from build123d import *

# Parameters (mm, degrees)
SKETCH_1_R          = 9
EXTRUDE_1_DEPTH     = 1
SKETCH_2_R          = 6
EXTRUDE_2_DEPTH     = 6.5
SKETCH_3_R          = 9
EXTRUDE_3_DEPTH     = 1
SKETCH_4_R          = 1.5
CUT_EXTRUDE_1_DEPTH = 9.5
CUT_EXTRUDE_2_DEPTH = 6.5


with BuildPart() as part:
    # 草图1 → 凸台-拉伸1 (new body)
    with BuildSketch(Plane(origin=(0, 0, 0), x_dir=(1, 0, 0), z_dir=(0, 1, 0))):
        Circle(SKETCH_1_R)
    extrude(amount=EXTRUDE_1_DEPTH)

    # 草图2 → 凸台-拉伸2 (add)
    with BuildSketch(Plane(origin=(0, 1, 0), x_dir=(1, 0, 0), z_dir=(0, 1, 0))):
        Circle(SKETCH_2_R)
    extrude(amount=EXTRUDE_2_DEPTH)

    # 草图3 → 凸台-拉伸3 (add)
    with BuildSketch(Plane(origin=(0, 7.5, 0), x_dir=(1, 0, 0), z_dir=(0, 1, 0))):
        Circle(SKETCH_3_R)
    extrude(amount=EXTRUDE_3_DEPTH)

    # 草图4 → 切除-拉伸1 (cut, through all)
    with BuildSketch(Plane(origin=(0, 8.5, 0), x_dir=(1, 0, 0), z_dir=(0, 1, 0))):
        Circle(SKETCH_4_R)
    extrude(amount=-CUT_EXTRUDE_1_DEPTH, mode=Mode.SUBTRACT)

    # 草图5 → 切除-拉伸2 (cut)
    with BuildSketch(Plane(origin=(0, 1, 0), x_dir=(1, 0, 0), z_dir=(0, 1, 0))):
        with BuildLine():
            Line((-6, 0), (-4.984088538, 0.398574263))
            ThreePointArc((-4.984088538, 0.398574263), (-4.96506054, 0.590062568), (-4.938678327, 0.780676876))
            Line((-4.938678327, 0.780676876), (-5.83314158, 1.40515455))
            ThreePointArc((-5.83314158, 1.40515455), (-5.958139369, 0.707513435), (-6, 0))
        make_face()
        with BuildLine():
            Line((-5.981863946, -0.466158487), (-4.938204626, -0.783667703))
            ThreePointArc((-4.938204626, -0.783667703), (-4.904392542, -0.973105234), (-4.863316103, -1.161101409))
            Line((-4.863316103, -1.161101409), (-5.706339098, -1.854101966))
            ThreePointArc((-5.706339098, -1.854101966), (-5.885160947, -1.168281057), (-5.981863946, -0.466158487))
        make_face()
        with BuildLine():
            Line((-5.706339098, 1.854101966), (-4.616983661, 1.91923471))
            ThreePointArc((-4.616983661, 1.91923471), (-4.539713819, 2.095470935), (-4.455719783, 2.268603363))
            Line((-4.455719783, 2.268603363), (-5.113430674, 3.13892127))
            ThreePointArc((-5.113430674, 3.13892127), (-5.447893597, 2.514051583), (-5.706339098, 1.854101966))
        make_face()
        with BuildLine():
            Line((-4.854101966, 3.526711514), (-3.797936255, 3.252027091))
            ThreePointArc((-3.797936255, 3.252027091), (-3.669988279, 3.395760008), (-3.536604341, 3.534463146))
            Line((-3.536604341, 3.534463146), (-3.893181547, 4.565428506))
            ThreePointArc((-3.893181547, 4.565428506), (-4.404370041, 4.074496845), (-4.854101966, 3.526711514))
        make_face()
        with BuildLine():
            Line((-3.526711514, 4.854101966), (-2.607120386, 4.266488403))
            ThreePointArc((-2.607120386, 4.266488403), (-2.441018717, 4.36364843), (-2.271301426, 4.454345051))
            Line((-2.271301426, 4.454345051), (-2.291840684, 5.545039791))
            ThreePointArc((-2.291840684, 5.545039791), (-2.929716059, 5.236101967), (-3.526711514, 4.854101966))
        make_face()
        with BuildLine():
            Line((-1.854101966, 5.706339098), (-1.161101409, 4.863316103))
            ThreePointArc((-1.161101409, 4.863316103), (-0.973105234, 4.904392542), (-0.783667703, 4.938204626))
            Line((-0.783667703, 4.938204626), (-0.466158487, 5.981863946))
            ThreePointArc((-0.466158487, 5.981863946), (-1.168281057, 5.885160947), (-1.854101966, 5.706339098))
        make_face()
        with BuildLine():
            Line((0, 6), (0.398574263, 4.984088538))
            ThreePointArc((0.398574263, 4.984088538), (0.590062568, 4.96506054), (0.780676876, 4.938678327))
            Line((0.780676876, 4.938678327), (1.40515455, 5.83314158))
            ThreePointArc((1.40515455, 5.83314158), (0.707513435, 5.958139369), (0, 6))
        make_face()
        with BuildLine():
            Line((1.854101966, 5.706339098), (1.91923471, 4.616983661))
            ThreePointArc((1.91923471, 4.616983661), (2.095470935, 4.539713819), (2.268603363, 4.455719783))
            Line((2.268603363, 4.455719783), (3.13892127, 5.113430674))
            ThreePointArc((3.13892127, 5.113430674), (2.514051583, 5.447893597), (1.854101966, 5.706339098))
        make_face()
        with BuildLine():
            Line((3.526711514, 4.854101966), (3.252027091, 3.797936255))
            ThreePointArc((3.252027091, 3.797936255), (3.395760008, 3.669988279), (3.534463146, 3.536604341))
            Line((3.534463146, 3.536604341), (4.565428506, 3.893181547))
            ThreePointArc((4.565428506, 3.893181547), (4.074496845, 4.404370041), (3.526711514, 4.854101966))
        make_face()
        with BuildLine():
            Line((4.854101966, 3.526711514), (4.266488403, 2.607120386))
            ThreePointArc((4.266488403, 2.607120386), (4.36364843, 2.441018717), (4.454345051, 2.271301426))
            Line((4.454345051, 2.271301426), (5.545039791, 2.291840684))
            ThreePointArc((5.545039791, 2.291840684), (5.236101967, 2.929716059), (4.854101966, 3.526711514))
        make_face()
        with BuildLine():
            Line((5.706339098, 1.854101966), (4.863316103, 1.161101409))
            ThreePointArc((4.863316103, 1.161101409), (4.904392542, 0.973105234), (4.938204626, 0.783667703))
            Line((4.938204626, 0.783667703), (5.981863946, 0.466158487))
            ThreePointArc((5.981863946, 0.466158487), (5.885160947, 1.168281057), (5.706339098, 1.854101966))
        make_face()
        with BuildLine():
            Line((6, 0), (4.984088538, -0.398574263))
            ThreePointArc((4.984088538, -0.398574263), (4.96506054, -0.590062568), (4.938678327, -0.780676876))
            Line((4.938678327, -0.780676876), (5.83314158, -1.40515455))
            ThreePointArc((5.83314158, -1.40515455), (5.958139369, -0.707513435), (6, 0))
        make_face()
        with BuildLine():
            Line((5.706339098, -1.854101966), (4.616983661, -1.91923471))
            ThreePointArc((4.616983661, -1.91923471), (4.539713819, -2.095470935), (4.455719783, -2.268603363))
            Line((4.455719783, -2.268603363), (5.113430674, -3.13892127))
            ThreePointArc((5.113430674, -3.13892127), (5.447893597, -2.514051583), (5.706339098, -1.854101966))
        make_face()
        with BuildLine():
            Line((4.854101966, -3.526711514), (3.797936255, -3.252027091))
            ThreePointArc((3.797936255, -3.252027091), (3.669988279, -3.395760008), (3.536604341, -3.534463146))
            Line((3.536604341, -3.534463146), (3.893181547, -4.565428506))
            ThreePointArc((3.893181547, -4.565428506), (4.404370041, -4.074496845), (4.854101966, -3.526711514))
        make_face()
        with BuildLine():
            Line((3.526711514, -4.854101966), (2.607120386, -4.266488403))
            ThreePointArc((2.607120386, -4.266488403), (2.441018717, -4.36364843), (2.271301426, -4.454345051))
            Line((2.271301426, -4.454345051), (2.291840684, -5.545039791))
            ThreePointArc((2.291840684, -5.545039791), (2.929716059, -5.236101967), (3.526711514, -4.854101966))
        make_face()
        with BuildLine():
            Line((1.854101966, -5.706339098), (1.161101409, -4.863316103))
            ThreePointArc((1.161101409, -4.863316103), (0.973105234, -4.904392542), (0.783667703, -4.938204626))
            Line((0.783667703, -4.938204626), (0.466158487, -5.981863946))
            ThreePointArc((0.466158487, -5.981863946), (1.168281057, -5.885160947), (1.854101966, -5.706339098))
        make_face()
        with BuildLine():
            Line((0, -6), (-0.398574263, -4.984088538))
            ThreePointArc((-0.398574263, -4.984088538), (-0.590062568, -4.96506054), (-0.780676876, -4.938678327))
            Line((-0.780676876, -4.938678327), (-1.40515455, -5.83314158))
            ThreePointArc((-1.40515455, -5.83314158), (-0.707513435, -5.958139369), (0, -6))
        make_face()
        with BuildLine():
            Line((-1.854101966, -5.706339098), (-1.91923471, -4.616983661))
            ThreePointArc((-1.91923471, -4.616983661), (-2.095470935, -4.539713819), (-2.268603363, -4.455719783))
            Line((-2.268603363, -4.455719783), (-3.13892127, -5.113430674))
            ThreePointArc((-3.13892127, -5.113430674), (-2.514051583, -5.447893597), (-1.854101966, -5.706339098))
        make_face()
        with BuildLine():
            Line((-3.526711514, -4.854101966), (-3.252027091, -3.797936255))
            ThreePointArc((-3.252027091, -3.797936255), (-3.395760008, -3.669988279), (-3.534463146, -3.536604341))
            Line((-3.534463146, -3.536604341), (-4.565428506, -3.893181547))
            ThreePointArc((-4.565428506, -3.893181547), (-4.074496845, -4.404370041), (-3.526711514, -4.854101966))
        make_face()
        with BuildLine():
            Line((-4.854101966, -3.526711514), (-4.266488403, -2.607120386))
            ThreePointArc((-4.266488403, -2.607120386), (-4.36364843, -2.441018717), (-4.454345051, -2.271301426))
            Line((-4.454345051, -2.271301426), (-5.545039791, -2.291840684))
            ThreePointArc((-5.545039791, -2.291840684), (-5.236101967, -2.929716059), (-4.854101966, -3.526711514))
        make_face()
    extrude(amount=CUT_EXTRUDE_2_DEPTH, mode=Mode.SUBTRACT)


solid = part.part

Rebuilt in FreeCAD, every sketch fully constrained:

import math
import FreeCAD as App
import Part
import Sketcher

doc = App.newDocument("Part")
body = doc.addObject("PartDesign::Body", "Body")

sketch1 = body.newObject("Sketcher::SketchObject", "Sketch")
sketch1.AttachmentSupport = (doc.getObject("XZ_Plane"), [""])
sketch1.MapMode = "FlatFace"
sketch1.addGeometry(Part.Circle(App.Vector(0, 0, 0), App.Vector(0, 0, 1), 9), False)
sketch1.addConstraint(Sketcher.Constraint("Coincident", 0, 3, -1, 1))
sketch1.addConstraint(Sketcher.Constraint("Diameter", 0, 18.0))
pad1 = body.newObject("PartDesign::Pad", "Pad")
pad1.Profile = sketch1
pad1.Length = 1
pad1.Reversed = True

sketch2 = body.newObject("Sketcher::SketchObject", "Sketch001")
sketch2.AttachmentSupport = (doc.getObject("XZ_Plane"), [""])
sketch2.MapMode = "FlatFace"
sketch2.AttachmentOffset = App.Placement(App.Vector(0, 0, -1), App.Rotation())
sketch2.addGeometry(Part.Circle(App.Vector(0, 0, 0), App.Vector(0, 0, 1), 6), False)
sketch2.addConstraint(Sketcher.Constraint("Coincident", 0, 3, -1, 1))
sketch2.addConstraint(Sketcher.Constraint("Diameter", 0, 12.0))
pad2 = body.newObject("PartDesign::Pad", "Pad001")
pad2.Profile = sketch2
pad2.Length = 6.5
pad2.Reversed = True

sketch3 = body.newObject("Sketcher::SketchObject", "Sketch002")
sketch3.AttachmentSupport = (doc.getObject("XZ_Plane"), [""])
sketch3.MapMode = "FlatFace"
sketch3.AttachmentOffset = App.Placement(App.Vector(0, 0, -7.5), App.Rotation())
sketch3.addGeometry(Part.Circle(App.Vector(0, 0, 0), App.Vector(0, 0, 1), 9), False)
sketch3.addConstraint(Sketcher.Constraint("Coincident", 0, 3, -1, 1))
sketch3.addConstraint(Sketcher.Constraint("Diameter", 0, 18.0))
pad3 = body.newObject("PartDesign::Pad", "Pad002")
pad3.Profile = sketch3
pad3.Length = 1
pad3.Reversed = True

sketch4 = body.newObject("Sketcher::SketchObject", "Sketch003")
sketch4.AttachmentSupport = (doc.getObject("XZ_Plane"), [""])
sketch4.MapMode = "FlatFace"
sketch4.AttachmentOffset = App.Placement(App.Vector(0, 0, -8.5), App.Rotation())
sketch4.addGeometry(Part.Circle(App.Vector(0, 0, 0), App.Vector(0, 0, 1), 1.5), False)
sketch4.addConstraint(Sketcher.Constraint("Coincident", 0, 3, -1, 1))
sketch4.addConstraint(Sketcher.Constraint("Diameter", 0, 3.0))
pocket1 = body.newObject("PartDesign::Pocket", "Pocket")
pocket1.Profile = sketch4
pocket1.Type = "ThroughAll"
pocket1.Reversed = True

sketch5 = body.newObject("Sketcher::SketchObject", "Sketch004")
sketch5.AttachmentSupport = (doc.getObject("XZ_Plane"), [""])
sketch5.MapMode = "FlatFace"
sketch5.AttachmentOffset = App.Placement(App.Vector(0, 0, -1), App.Rotation())
sketch5.addGeometry(Part.LineSegment(App.Vector(-6, 0, 0), App.Vector(-4.98, -0.4, 0)), False)
sketch5.addGeometry(Part.ArcOfCircle(Part.Circle(App.Vector(0, 0, 0), App.Vector(0, 0, 1), 5), math.radians(-175.43), math.radians(-171.02)), False)
sketch5.addGeometry(Part.LineSegment(App.Vector(-4.94, -0.78, 0), App.Vector(-5.83, -1.41, 0)), False)
sketch5.addGeometry(Part.ArcOfCircle(Part.Circle(App.Vector(0, 0, 0), App.Vector(0, 0, 1), 6), math.radians(180), math.radians(193.54)), False)
sketch5.addGeometry(Part.LineSegment(App.Vector(-4.94, 0.78, 0), App.Vector(-5.98, 0.47, 0)), False)
sketch5.addGeometry(Part.ArcOfCircle(Part.Circle(App.Vector(0, 0, 0), App.Vector(0, 0, 1), 6), math.radians(162), math.radians(175.54)), False)
sketch5.addGeometry(Part.LineSegment(App.Vector(-5.71, 1.85, 0), App.Vector(-4.86, 1.16, 0)), False)
sketch5.addGeometry(Part.ArcOfCircle(Part.Circle(App.Vector(0, 0, 0), App.Vector(0, 0, 1), 5), math.radians(166.57), math.radians(170.98)), False)
sketch5.addGeometry(Part.LineSegment(App.Vector(-5.71, -1.85, 0), App.Vector(-4.62, -1.92, 0)), False)
sketch5.addGeometry(Part.ArcOfCircle(Part.Circle(App.Vector(0, 0, 0), App.Vector(0, 0, 1), 5), math.radians(-157.43), math.radians(-153.02)), False)
sketch5.addGeometry(Part.LineSegment(App.Vector(-4.46, -2.27, 0), App.Vector(-5.11, -3.14, 0)), False)
sketch5.addGeometry(Part.ArcOfCircle(Part.Circle(App.Vector(0, 0, 0), App.Vector(0, 0, 1), 6), math.radians(-162), math.radians(-148.46)), False)
sketch5.addGeometry(Part.LineSegment(App.Vector(-4.85, -3.53, 0), App.Vector(-3.8, -3.25, 0)), False)
sketch5.addGeometry(Part.ArcOfCircle(Part.Circle(App.Vector(0, 0, 0), App.Vector(0, 0, 1), 5), math.radians(-139.43), math.radians(-135.02)), False)
sketch5.addGeometry(Part.LineSegment(App.Vector(-3.54, -3.53, 0), App.Vector(-3.89, -4.57, 0)), False)
sketch5.addGeometry(Part.ArcOfCircle(Part.Circle(App.Vector(0, 0, 0), App.Vector(0, 0, 1), 6), math.radians(-144), math.radians(-130.46)), False)
sketch5.addGeometry(Part.LineSegment(App.Vector(-3.53, -4.85, 0), App.Vector(-2.61, -4.27, 0)), False)
sketch5.addGeometry(Part.ArcOfCircle(Part.Circle(App.Vector(0, 0, 0), App.Vector(0, 0, 1), 5), math.radians(-121.43), math.radians(-117.02)), False)
sketch5.addGeometry(Part.LineSegment(App.Vector(-2.27, -4.45, 0), App.Vector(-2.29, -5.55, 0)), False)
sketch5.addGeometry(Part.ArcOfCircle(Part.Circle(App.Vector(0, 0, 0), App.Vector(0, 0, 1), 6), math.radians(-126), math.radians(-112.46)), False)
sketch5.addGeometry(Part.LineSegment(App.Vector(-1.85, -5.71, 0), App.Vector(-1.16, -4.86, 0)), False)
sketch5.addGeometry(Part.ArcOfCircle(Part.Circle(App.Vector(0, 0, 0), App.Vector(0, 0, 1), 5), math.radians(-103.43), math.radians(-99.02)), False)
sketch5.addGeometry(Part.LineSegment(App.Vector(-0.78, -4.94, 0), App.Vector(-0.47, -5.98, 0)), False)
sketch5.addGeometry(Part.ArcOfCircle(Part.Circle(App.Vector(0, 0, 0), App.Vector(0, 0, 1), 6), math.radians(-108), math.radians(-94.46)), False)
sketch5.addGeometry(Part.LineSegment(App.Vector(0, -6, 0), App.Vector(0.4, -4.98, 0)), False)
sketch5.addGeometry(Part.ArcOfCircle(Part.Circle(App.Vector(0, 0, 0), App.Vector(0, 0, 1), 5), math.radians(-85.43), math.radians(-81.02)), False)
sketch5.addGeometry(Part.LineSegment(App.Vector(0.78, -4.94, 0), App.Vector(1.41, -5.83, 0)), False)
sketch5.addGeometry(Part.ArcOfCircle(Part.Circle(App.Vector(0, 0, 0), App.Vector(0, 0, 1), 6), math.radians(-90), math.radians(-76.46)), False)
sketch5.addGeometry(Part.LineSegment(App.Vector(1.85, -5.71, 0), App.Vector(1.92, -4.62, 0)), False)
sketch5.addGeometry(Part.ArcOfCircle(Part.Circle(App.Vector(0, 0, 0), App.Vector(0, 0, 1), 5), math.radians(-67.43), math.radians(-63.02)), False)
sketch5.addGeometry(Part.LineSegment(App.Vector(2.27, -4.46, 0), App.Vector(3.14, -5.11, 0)), False)
sketch5.addGeometry(Part.ArcOfCircle(Part.Circle(App.Vector(0, 0, 0), App.Vector(0, 0, 1), 6), math.radians(-72), math.radians(-58.46)), False)
sketch5.addGeometry(Part.LineSegment(App.Vector(3.53, -4.85, 0), App.Vector(3.25, -3.8, 0)), False)
sketch5.addGeometry(Part.ArcOfCircle(Part.Circle(App.Vector(0, 0, 0), App.Vector(0, 0, 1), 5), math.radians(-49.43), math.radians(-45.02)), False)
sketch5.addGeometry(Part.LineSegment(App.Vector(3.53, -3.54, 0), App.Vector(4.57, -3.89, 0)), False)
sketch5.addGeometry(Part.ArcOfCircle(Part.Circle(App.Vector(0, 0, 0), App.Vector(0, 0, 1), 6), math.radians(-54), math.radians(-40.46)), False)
sketch5.addGeometry(Part.LineSegment(App.Vector(4.85, -3.53, 0), App.Vector(4.27, -2.61, 0)), False)
sketch5.addGeometry(Part.ArcOfCircle(Part.Circle(App.Vector(0, 0, 0), App.Vector(0, 0, 1), 5), math.radians(-31.43), math.radians(-27.02)), False)
sketch5.addGeometry(Part.LineSegment(App.Vector(4.45, -2.27, 0), App.Vector(5.55, -2.29, 0)), False)
sketch5.addGeometry(Part.ArcOfCircle(Part.Circle(App.Vector(0, 0, 0), App.Vector(0, 0, 1), 6), math.radians(-36), math.radians(-22.46)), False)
sketch5.addGeometry(Part.LineSegment(App.Vector(5.71, -1.85, 0), App.Vector(4.86, -1.16, 0)), False)
sketch5.addGeometry(Part.ArcOfCircle(Part.Circle(App.Vector(0, 0, 0), App.Vector(0, 0, 1), 5), math.radians(-13.43), math.radians(-9.02)), False)
sketch5.addGeometry(Part.LineSegment(App.Vector(4.94, -0.78, 0), App.Vector(5.98, -0.47, 0)), False)
sketch5.addGeometry(Part.ArcOfCircle(Part.Circle(App.Vector(0, 0, 0), App.Vector(0, 0, 1), 6), math.radians(-18), math.radians(-4.46)), False)
sketch5.addGeometry(Part.LineSegment(App.Vector(6, 0, 0), App.Vector(4.98, 0.4, 0)), False)
sketch5.addGeometry(Part.ArcOfCircle(Part.Circle(App.Vector(0, 0, 0), App.Vector(0, 0, 1), 5), math.radians(4.57), math.radians(8.98)), False)
sketch5.addGeometry(Part.LineSegment(App.Vector(4.94, 0.78, 0), App.Vector(5.83, 1.41, 0)), False)
sketch5.addGeometry(Part.ArcOfCircle(Part.Circle(App.Vector(0, 0, 0), App.Vector(0, 0, 1), 6), math.radians(0), math.radians(13.54)), False)
sketch5.addGeometry(Part.LineSegment(App.Vector(5.71, 1.85, 0), App.Vector(4.62, 1.92, 0)), False)
sketch5.addGeometry(Part.ArcOfCircle(Part.Circle(App.Vector(0, 0, 0), App.Vector(0, 0, 1), 5), math.radians(22.57), math.radians(26.98)), False)
sketch5.addGeometry(Part.LineSegment(App.Vector(4.46, 2.27, 0), App.Vector(5.11, 3.14, 0)), False)
sketch5.addGeometry(Part.ArcOfCircle(Part.Circle(App.Vector(0, 0, 0), App.Vector(0, 0, 1), 6), math.radians(18), math.radians(31.54)), False)
sketch5.addGeometry(Part.LineSegment(App.Vector(4.85, 3.53, 0), App.Vector(3.8, 3.25, 0)), False)
sketch5.addGeometry(Part.ArcOfCircle(Part.Circle(App.Vector(0, 0, 0), App.Vector(0, 0, 1), 5), math.radians(40.57), math.radians(44.98)), False)
sketch5.addGeometry(Part.LineSegment(App.Vector(3.54, 3.53, 0), App.Vector(3.89, 4.57, 0)), False)
sketch5.addGeometry(Part.ArcOfCircle(Part.Circle(App.Vector(0, 0, 0), App.Vector(0, 0, 1), 6), math.radians(36), math.radians(49.54)), False)
sketch5.addGeometry(Part.LineSegment(App.Vector(3.53, 4.85, 0), App.Vector(2.61, 4.27, 0)), False)
sketch5.addGeometry(Part.ArcOfCircle(Part.Circle(App.Vector(0, 0, 0), App.Vector(0, 0, 1), 5), math.radians(58.57), math.radians(62.98)), False)
sketch5.addGeometry(Part.LineSegment(App.Vector(2.27, 4.45, 0), App.Vector(2.29, 5.55, 0)), False)
sketch5.addGeometry(Part.ArcOfCircle(Part.Circle(App.Vector(0, 0, 0), App.Vector(0, 0, 1), 6), math.radians(54), math.radians(67.54)), False)
sketch5.addGeometry(Part.LineSegment(App.Vector(1.85, 5.71, 0), App.Vector(1.16, 4.86, 0)), False)
sketch5.addGeometry(Part.ArcOfCircle(Part.Circle(App.Vector(0, 0, 0), App.Vector(0, 0, 1), 5), math.radians(76.57), math.radians(80.98)), False)
sketch5.addGeometry(Part.LineSegment(App.Vector(0.78, 4.94, 0), App.Vector(0.47, 5.98, 0)), False)
sketch5.addGeometry(Part.ArcOfCircle(Part.Circle(App.Vector(0, 0, 0), App.Vector(0, 0, 1), 6), math.radians(72), math.radians(85.54)), False)
sketch5.addGeometry(Part.LineSegment(App.Vector(0, 6, 0), App.Vector(-0.4, 4.98, 0)), False)
sketch5.addGeometry(Part.ArcOfCircle(Part.Circle(App.Vector(0, 0, 0), App.Vector(0, 0, 1), 5), math.radians(94.57), math.radians(98.98)), False)
sketch5.addGeometry(Part.LineSegment(App.Vector(-0.78, 4.94, 0), App.Vector(-1.41, 5.83, 0)), False)
sketch5.addGeometry(Part.ArcOfCircle(Part.Circle(App.Vector(0, 0, 0), App.Vector(0, 0, 1), 6), math.radians(90), math.radians(103.54)), False)
sketch5.addGeometry(Part.LineSegment(App.Vector(-1.85, 5.71, 0), App.Vector(-1.92, 4.62, 0)), False)
sketch5.addGeometry(Part.ArcOfCircle(Part.Circle(App.Vector(0, 0, 0), App.Vector(0, 0, 1), 5), math.radians(112.57), math.radians(116.98)), False)
sketch5.addGeometry(Part.LineSegment(App.Vector(-2.27, 4.46, 0), App.Vector(-3.14, 5.11, 0)), False)
sketch5.addGeometry(Part.ArcOfCircle(Part.Circle(App.Vector(0, 0, 0), App.Vector(0, 0, 1), 6), math.radians(108), math.radians(121.54)), False)
sketch5.addGeometry(Part.LineSegment(App.Vector(-3.53, 4.85, 0), App.Vector(-3.25, 3.8, 0)), False)
sketch5.addGeometry(Part.ArcOfCircle(Part.Circle(App.Vector(0, 0, 0), App.Vector(0, 0, 1), 5), math.radians(130.57), math.radians(134.98)), False)
sketch5.addGeometry(Part.LineSegment(App.Vector(-3.53, 3.54, 0), App.Vector(-4.57, 3.89, 0)), False)
sketch5.addGeometry(Part.ArcOfCircle(Part.Circle(App.Vector(0, 0, 0), App.Vector(0, 0, 1), 6), math.radians(126), math.radians(139.54)), False)
sketch5.addGeometry(Part.LineSegment(App.Vector(-4.85, 3.53, 0), App.Vector(-4.27, 2.61, 0)), False)
sketch5.addGeometry(Part.ArcOfCircle(Part.Circle(App.Vector(0, 0, 0), App.Vector(0, 0, 1), 5), math.radians(148.57), math.radians(152.98)), False)
sketch5.addGeometry(Part.LineSegment(App.Vector(-4.45, 2.27, 0), App.Vector(-5.55, 2.29, 0)), False)
sketch5.addGeometry(Part.ArcOfCircle(Part.Circle(App.Vector(0, 0, 0), App.Vector(0, 0, 1), 6), math.radians(144), math.radians(157.54)), False)
sketch5.addConstraint(Sketcher.Constraint("Coincident", 0, 2, 1, 1))
sketch5.addConstraint(Sketcher.Constraint("Coincident", 1, 2, 2, 1))
sketch5.addConstraint(Sketcher.Constraint("Coincident", 2, 2, 3, 2))
sketch5.addConstraint(Sketcher.Constraint("Coincident", 3, 1, 0, 1))
sketch5.addConstraint(Sketcher.Constraint("Coincident", 4, 2, 5, 2))
sketch5.addConstraint(Sketcher.Constraint("Coincident", 5, 1, 6, 1))
sketch5.addConstraint(Sketcher.Constraint("Coincident", 6, 2, 7, 1))
sketch5.addConstraint(Sketcher.Constraint("Coincident", 7, 2, 4, 1))
sketch5.addConstraint(Sketcher.Constraint("Coincident", 8, 2, 9, 1))
sketch5.addConstraint(Sketcher.Constraint("Coincident", 9, 2, 10, 1))
sketch5.addConstraint(Sketcher.Constraint("Coincident", 10, 2, 11, 2))
sketch5.addConstraint(Sketcher.Constraint("Coincident", 11, 1, 8, 1))
sketch5.addConstraint(Sketcher.Constraint("Coincident", 12, 2, 13, 1))
sketch5.addConstraint(Sketcher.Constraint("Coincident", 13, 2, 14, 1))
sketch5.addConstraint(Sketcher.Constraint("Coincident", 14, 2, 15, 2))
sketch5.addConstraint(Sketcher.Constraint("Coincident", 15, 1, 12, 1))
sketch5.addConstraint(Sketcher.Constraint("Coincident", 16, 2, 17, 1))
sketch5.addConstraint(Sketcher.Constraint("Coincident", 17, 2, 18, 1))
sketch5.addConstraint(Sketcher.Constraint("Coincident", 18, 2, 19, 2))
sketch5.addConstraint(Sketcher.Constraint("Coincident", 19, 1, 16, 1))
sketch5.addConstraint(Sketcher.Constraint("Coincident", 20, 2, 21, 1))
sketch5.addConstraint(Sketcher.Constraint("Coincident", 21, 2, 22, 1))
sketch5.addConstraint(Sketcher.Constraint("Coincident", 22, 2, 23, 2))
sketch5.addConstraint(Sketcher.Constraint("Coincident", 23, 1, 20, 1))
sketch5.addConstraint(Sketcher.Constraint("Coincident", 24, 2, 25, 1))
sketch5.addConstraint(Sketcher.Constraint("Coincident", 25, 2, 26, 1))
sketch5.addConstraint(Sketcher.Constraint("Coincident", 26, 2, 27, 2))
sketch5.addConstraint(Sketcher.Constraint("Coincident", 27, 1, 24, 1))
sketch5.addConstraint(Sketcher.Constraint("Coincident", 28, 2, 29, 1))
sketch5.addConstraint(Sketcher.Constraint("Coincident", 29, 2, 30, 1))
sketch5.addConstraint(Sketcher.Constraint("Coincident", 30, 2, 31, 2))
sketch5.addConstraint(Sketcher.Constraint("Coincident", 31, 1, 28, 1))
sketch5.addConstraint(Sketcher.Constraint("Coincident", 32, 2, 33, 1))
sketch5.addConstraint(Sketcher.Constraint("Coincident", 33, 2, 34, 1))
sketch5.addConstraint(Sketcher.Constraint("Coincident", 34, 2, 35, 2))
sketch5.addConstraint(Sketcher.Constraint("Coincident", 35, 1, 32, 1))
sketch5.addConstraint(Sketcher.Constraint("Coincident", 36, 2, 37, 1))
sketch5.addConstraint(Sketcher.Constraint("Coincident", 37, 2, 38, 1))
sketch5.addConstraint(Sketcher.Constraint("Coincident", 38, 2, 39, 2))
sketch5.addConstraint(Sketcher.Constraint("Coincident", 39, 1, 36, 1))
sketch5.addConstraint(Sketcher.Constraint("Coincident", 40, 2, 41, 1))
sketch5.addConstraint(Sketcher.Constraint("Coincident", 41, 2, 42, 1))
sketch5.addConstraint(Sketcher.Constraint("Coincident", 42, 2, 43, 2))
sketch5.addConstraint(Sketcher.Constraint("Coincident", 43, 1, 40, 1))
sketch5.addConstraint(Sketcher.Constraint("Coincident", 44, 2, 45, 1))
sketch5.addConstraint(Sketcher.Constraint("Coincident", 45, 2, 46, 1))
sketch5.addConstraint(Sketcher.Constraint("Coincident", 46, 2, 47, 2))
sketch5.addConstraint(Sketcher.Constraint("Coincident", 47, 1, 44, 1))
sketch5.addConstraint(Sketcher.Constraint("Coincident", 48, 2, 49, 1))
sketch5.addConstraint(Sketcher.Constraint("Coincident", 49, 2, 50, 1))
sketch5.addConstraint(Sketcher.Constraint("Coincident", 50, 2, 51, 2))
sketch5.addConstraint(Sketcher.Constraint("Coincident", 51, 1, 48, 1))
sketch5.addConstraint(Sketcher.Constraint("Coincident", 52, 2, 53, 1))
sketch5.addConstraint(Sketcher.Constraint("Coincident", 53, 2, 54, 1))
sketch5.addConstraint(Sketcher.Constraint("Coincident", 54, 2, 55, 2))
sketch5.addConstraint(Sketcher.Constraint("Coincident", 55, 1, 52, 1))
sketch5.addConstraint(Sketcher.Constraint("Coincident", 56, 2, 57, 1))
sketch5.addConstraint(Sketcher.Constraint("Coincident", 57, 2, 58, 1))
sketch5.addConstraint(Sketcher.Constraint("Coincident", 58, 2, 59, 2))
sketch5.addConstraint(Sketcher.Constraint("Coincident", 59, 1, 56, 1))
sketch5.addConstraint(Sketcher.Constraint("Coincident", 60, 2, 61, 1))
sketch5.addConstraint(Sketcher.Constraint("Coincident", 61, 2, 62, 1))
sketch5.addConstraint(Sketcher.Constraint("Coincident", 62, 2, 63, 2))
sketch5.addConstraint(Sketcher.Constraint("Coincident", 63, 1, 60, 1))
sketch5.addConstraint(Sketcher.Constraint("Coincident", 64, 2, 65, 1))
sketch5.addConstraint(Sketcher.Constraint("Coincident", 65, 2, 66, 1))
sketch5.addConstraint(Sketcher.Constraint("Coincident", 66, 2, 67, 2))
sketch5.addConstraint(Sketcher.Constraint("Coincident", 67, 1, 64, 1))
sketch5.addConstraint(Sketcher.Constraint("Coincident", 68, 2, 69, 1))
sketch5.addConstraint(Sketcher.Constraint("Coincident", 69, 2, 70, 1))
sketch5.addConstraint(Sketcher.Constraint("Coincident", 70, 2, 71, 2))
sketch5.addConstraint(Sketcher.Constraint("Coincident", 71, 1, 68, 1))
sketch5.addConstraint(Sketcher.Constraint("Coincident", 72, 2, 73, 1))
sketch5.addConstraint(Sketcher.Constraint("Coincident", 73, 2, 74, 1))
sketch5.addConstraint(Sketcher.Constraint("Coincident", 74, 2, 75, 2))
sketch5.addConstraint(Sketcher.Constraint("Coincident", 75, 1, 72, 1))
sketch5.addConstraint(Sketcher.Constraint("Coincident", 76, 2, 77, 1))
sketch5.addConstraint(Sketcher.Constraint("Coincident", 77, 2, 78, 1))
sketch5.addConstraint(Sketcher.Constraint("Coincident", 78, 2, 79, 2))
sketch5.addConstraint(Sketcher.Constraint("Coincident", 79, 1, 76, 1))
sketch5.addConstraint(Sketcher.Constraint("Coincident", 1, 3, -1, 1))
sketch5.addConstraint(Sketcher.Constraint("Coincident", 3, 3, -1, 1))
sketch5.addConstraint(Sketcher.Constraint("Coincident", 5, 3, -1, 1))
sketch5.addConstraint(Sketcher.Constraint("Coincident", 7, 3, -1, 1))
sketch5.addConstraint(Sketcher.Constraint("Coincident", 9, 3, -1, 1))
sketch5.addConstraint(Sketcher.Constraint("Coincident", 11, 3, -1, 1))
sketch5.addConstraint(Sketcher.Constraint("Coincident", 13, 3, -1, 1))
sketch5.addConstraint(Sketcher.Constraint("Coincident", 15, 3, -1, 1))
sketch5.addConstraint(Sketcher.Constraint("Coincident", 17, 3, -1, 1))
sketch5.addConstraint(Sketcher.Constraint("Coincident", 19, 3, -1, 1))
sketch5.addConstraint(Sketcher.Constraint("Coincident", 21, 3, -1, 1))
sketch5.addConstraint(Sketcher.Constraint("Coincident", 23, 3, -1, 1))
sketch5.addConstraint(Sketcher.Constraint("Coincident", 25, 3, -1, 1))
sketch5.addConstraint(Sketcher.Constraint("Coincident", 27, 3, -1, 1))
sketch5.addConstraint(Sketcher.Constraint("Coincident", 29, 3, -1, 1))
sketch5.addConstraint(Sketcher.Constraint("Coincident", 31, 3, -1, 1))
sketch5.addConstraint(Sketcher.Constraint("Coincident", 33, 3, -1, 1))
sketch5.addConstraint(Sketcher.Constraint("Coincident", 35, 3, -1, 1))
sketch5.addConstraint(Sketcher.Constraint("Coincident", 37, 3, -1, 1))
sketch5.addConstraint(Sketcher.Constraint("Coincident", 39, 3, -1, 1))
sketch5.addConstraint(Sketcher.Constraint("Coincident", 41, 3, -1, 1))
sketch5.addConstraint(Sketcher.Constraint("Coincident", 43, 3, -1, 1))
sketch5.addConstraint(Sketcher.Constraint("Coincident", 45, 3, -1, 1))
sketch5.addConstraint(Sketcher.Constraint("Coincident", 47, 3, -1, 1))
sketch5.addConstraint(Sketcher.Constraint("Coincident", 49, 3, -1, 1))
sketch5.addConstraint(Sketcher.Constraint("Coincident", 51, 3, -1, 1))
sketch5.addConstraint(Sketcher.Constraint("Coincident", 53, 3, -1, 1))
sketch5.addConstraint(Sketcher.Constraint("Coincident", 55, 3, -1, 1))
sketch5.addConstraint(Sketcher.Constraint("Coincident", 57, 3, -1, 1))
sketch5.addConstraint(Sketcher.Constraint("Coincident", 59, 3, -1, 1))
sketch5.addConstraint(Sketcher.Constraint("Coincident", 61, 3, -1, 1))
sketch5.addConstraint(Sketcher.Constraint("Coincident", 63, 3, -1, 1))
sketch5.addConstraint(Sketcher.Constraint("Coincident", 65, 3, -1, 1))
sketch5.addConstraint(Sketcher.Constraint("Coincident", 67, 3, -1, 1))
sketch5.addConstraint(Sketcher.Constraint("Coincident", 69, 3, -1, 1))
sketch5.addConstraint(Sketcher.Constraint("Coincident", 71, 3, -1, 1))
sketch5.addConstraint(Sketcher.Constraint("Coincident", 73, 3, -1, 1))
sketch5.addConstraint(Sketcher.Constraint("Coincident", 75, 3, -1, 1))
sketch5.addConstraint(Sketcher.Constraint("Coincident", 77, 3, -1, 1))
sketch5.addConstraint(Sketcher.Constraint("Coincident", 79, 3, -1, 1))
sketch5.addConstraint(Sketcher.Constraint("Equal", 3, 5))
sketch5.addConstraint(Sketcher.Constraint("Equal", 1, 7))
sketch5.addConstraint(Sketcher.Constraint("Equal", 7, 9))
sketch5.addConstraint(Sketcher.Constraint("Equal", 5, 11))
sketch5.addConstraint(Sketcher.Constraint("Equal", 9, 13))
sketch5.addConstraint(Sketcher.Constraint("Equal", 11, 15))
sketch5.addConstraint(Sketcher.Constraint("Equal", 13, 17))
sketch5.addConstraint(Sketcher.Constraint("Equal", 15, 19))
sketch5.addConstraint(Sketcher.Constraint("Equal", 17, 21))
sketch5.addConstraint(Sketcher.Constraint("Equal", 19, 23))
sketch5.addConstraint(Sketcher.Constraint("Equal", 21, 25))
sketch5.addConstraint(Sketcher.Constraint("Equal", 23, 27))
sketch5.addConstraint(Sketcher.Constraint("Equal", 25, 29))
sketch5.addConstraint(Sketcher.Constraint("Equal", 27, 31))
sketch5.addConstraint(Sketcher.Constraint("Equal", 29, 33))
sketch5.addConstraint(Sketcher.Constraint("Equal", 31, 35))
sketch5.addConstraint(Sketcher.Constraint("Equal", 33, 37))
sketch5.addConstraint(Sketcher.Constraint("Equal", 35, 39))
sketch5.addConstraint(Sketcher.Constraint("Equal", 37, 41))
sketch5.addConstraint(Sketcher.Constraint("Equal", 39, 43))
sketch5.addConstraint(Sketcher.Constraint("Equal", 41, 45))
sketch5.addConstraint(Sketcher.Constraint("Equal", 43, 47))
sketch5.addConstraint(Sketcher.Constraint("Equal", 45, 49))
sketch5.addConstraint(Sketcher.Constraint("Equal", 47, 51))
sketch5.addConstraint(Sketcher.Constraint("Equal", 49, 53))
sketch5.addConstraint(Sketcher.Constraint("Equal", 51, 55))
sketch5.addConstraint(Sketcher.Constraint("Equal", 53, 57))
sketch5.addConstraint(Sketcher.Constraint("Equal", 55, 59))
sketch5.addConstraint(Sketcher.Constraint("Equal", 57, 61))
sketch5.addConstraint(Sketcher.Constraint("Equal", 59, 63))
sketch5.addConstraint(Sketcher.Constraint("Equal", 61, 65))
sketch5.addConstraint(Sketcher.Constraint("Equal", 63, 67))
sketch5.addConstraint(Sketcher.Constraint("Equal", 65, 69))
sketch5.addConstraint(Sketcher.Constraint("Equal", 67, 71))
sketch5.addConstraint(Sketcher.Constraint("Equal", 69, 73))
sketch5.addConstraint(Sketcher.Constraint("Equal", 71, 75))
sketch5.addConstraint(Sketcher.Constraint("Equal", 73, 77))
sketch5.addConstraint(Sketcher.Constraint("Equal", 75, 79))
sketch5.addConstraint(Sketcher.Constraint("PointOnObject", 3, 1, -1))
sketch5.addConstraint(Sketcher.Constraint("PointOnObject", 27, 1, -2))
sketch5.addConstraint(Sketcher.Constraint("PointOnObject", 47, 1, -1))
sketch5.addConstraint(Sketcher.Constraint("PointOnObject", 67, 1, -2))
sketch5.addConstraint(Sketcher.Constraint("Perpendicular", 6, 20))
sketch5.addConstraint(Sketcher.Constraint("Perpendicular", 4, 22))
sketch5.addConstraint(Sketcher.Constraint("Perpendicular", 0, 24))
sketch5.addConstraint(Sketcher.Constraint("Perpendicular", 2, 26))
sketch5.addConstraint(Sketcher.Constraint("Perpendicular", 8, 28))
sketch5.addConstraint(Sketcher.Constraint("Perpendicular", 10, 30))
sketch5.addConstraint(Sketcher.Constraint("Perpendicular", 12, 32))
sketch5.addConstraint(Sketcher.Constraint("Perpendicular", 14, 34))
sketch5.addConstraint(Sketcher.Constraint("Perpendicular", 16, 36))
sketch5.addConstraint(Sketcher.Constraint("Perpendicular", 18, 38))
sketch5.addConstraint(Sketcher.Constraint("Perpendicular", 20, 40))
sketch5.addConstraint(Sketcher.Constraint("Perpendicular", 22, 42))
sketch5.addConstraint(Sketcher.Constraint("Perpendicular", 24, 44))
sketch5.addConstraint(Sketcher.Constraint("Perpendicular", 26, 46))
sketch5.addConstraint(Sketcher.Constraint("Perpendicular", 28, 48))
sketch5.addConstraint(Sketcher.Constraint("Perpendicular", 30, 50))
sketch5.addConstraint(Sketcher.Constraint("Perpendicular", 32, 52))
sketch5.addConstraint(Sketcher.Constraint("Perpendicular", 34, 54))
sketch5.addConstraint(Sketcher.Constraint("Perpendicular", 36, 56))
sketch5.addConstraint(Sketcher.Constraint("Perpendicular", 38, 58))
sketch5.addConstraint(Sketcher.Constraint("Perpendicular", 40, 60))
sketch5.addConstraint(Sketcher.Constraint("Perpendicular", 42, 62))
sketch5.addConstraint(Sketcher.Constraint("Perpendicular", 44, 64))
sketch5.addConstraint(Sketcher.Constraint("Perpendicular", 46, 66))
sketch5.addConstraint(Sketcher.Constraint("Perpendicular", 48, 68))
sketch5.addConstraint(Sketcher.Constraint("Perpendicular", 50, 70))
sketch5.addConstraint(Sketcher.Constraint("Perpendicular", 52, 72))
sketch5.addConstraint(Sketcher.Constraint("Perpendicular", 54, 74))
sketch5.addConstraint(Sketcher.Constraint("Perpendicular", 56, 76))
sketch5.addConstraint(Sketcher.Constraint("Perpendicular", 58, 78))
sketch5.addConstraint(Sketcher.Constraint("Horizontal", 23, 1, 31, 1))
sketch5.addConstraint(Sketcher.Constraint("Horizontal", 19, 1, 35, 1))
sketch5.addConstraint(Sketcher.Constraint("Horizontal", 15, 1, 39, 1))
sketch5.addConstraint(Sketcher.Constraint("Horizontal", 11, 1, 43, 1))
sketch5.addConstraint(Sketcher.Constraint("Horizontal", 5, 1, 51, 1))
sketch5.addConstraint(Sketcher.Constraint("Horizontal", 63, 1, 71, 1))
sketch5.addConstraint(Sketcher.Constraint("Horizontal", 59, 1, 75, 1))
sketch5.addConstraint(Sketcher.Constraint("Horizontal", 55, 1, 79, 1))
sketch5.addConstraint(Sketcher.Constraint("Vertical", 5, 1, 11, 1))
sketch5.addConstraint(Sketcher.Constraint("Vertical", 39, 1, 55, 1))
sketch5.addConstraint(Sketcher.Constraint("Vertical", 35, 1, 59, 1))
sketch5.addConstraint(Sketcher.Constraint("Vertical", 31, 1, 63, 1))
sketch5.addConstraint(Sketcher.Constraint("Equal", 2, 4))
sketch5.addConstraint(Sketcher.Constraint("Equal", 0, 6))
sketch5.addConstraint(Sketcher.Constraint("Equal", 6, 8))
sketch5.addConstraint(Sketcher.Constraint("Equal", 4, 10))
sketch5.addConstraint(Sketcher.Constraint("Equal", 8, 12))
sketch5.addConstraint(Sketcher.Constraint("Equal", 10, 14))
sketch5.addConstraint(Sketcher.Constraint("Equal", 12, 16))
sketch5.addConstraint(Sketcher.Constraint("Equal", 14, 18))
sketch5.addConstraint(Sketcher.Constraint("Equal", 16, 20))
sketch5.addConstraint(Sketcher.Constraint("Equal", 18, 22))
sketch5.addConstraint(Sketcher.Constraint("Equal", 22, 26))
sketch5.addConstraint(Sketcher.Constraint("Equal", 26, 30))
sketch5.addConstraint(Sketcher.Constraint("Equal", 28, 32))
sketch5.addConstraint(Sketcher.Constraint("Equal", 30, 34))
sketch5.addConstraint(Sketcher.Constraint("Equal", 34, 38))
sketch5.addConstraint(Sketcher.Constraint("Equal", 38, 42))
sketch5.addConstraint(Sketcher.Constraint("Equal", 42, 46))
sketch5.addConstraint(Sketcher.Constraint("Equal", 46, 50))
sketch5.addConstraint(Sketcher.Constraint("Equal", 50, 54))
sketch5.addConstraint(Sketcher.Constraint("Equal", 54, 58))
sketch5.addConstraint(Sketcher.Constraint("Equal", 58, 62))
sketch5.addConstraint(Sketcher.Constraint("Equal", 62, 66))
sketch5.addConstraint(Sketcher.Constraint("Equal", 66, 70))
sketch5.addConstraint(Sketcher.Constraint("Equal", 70, 74))
sketch5.addConstraint(Sketcher.Constraint("Equal", 74, 78))
sketch5.addConstraint(Sketcher.Constraint("Radius", 1, 5.0))
sketch5.addConstraint(Sketcher.Constraint("Radius", 3, 6.0))
sketch5.addConstraint(Sketcher.Constraint("Distance", 0, 1.091301))
sketch5.addConstraint(Sketcher.Constraint("DistanceY", -1, 1, 5, 1, 1.854102))
sketch5.addConstraint(Sketcher.Constraint("DistanceX", 15, 1, -1, 1, 4.854102))
sketch5.addConstraint(Sketcher.Constraint("DistanceX", 17, 2, -1, 1, 2.271301))
sketch5.addConstraint(Sketcher.Constraint("Distance", 2, 1.090888))
sketch5.addConstraint(Sketcher.Constraint("DistanceX", 1, 2, -1, 1, 4.938678))
sketch5.addConstraint(Sketcher.Constraint("DistanceY", -1, 1, 4, 2, 0.466158))
sketch5.addConstraint(Sketcher.Constraint("DistanceX", 9, 2, -1, 1, 4.45572))
sketch5.addConstraint(Sketcher.Constraint("DistanceX", 14, 2, -1, 1, 3.893182))
pocket2 = body.newObject("PartDesign::Pocket", "Pocket001")
pocket2.Profile = sketch5
pocket2.Length = 6.5

doc.recompute()
